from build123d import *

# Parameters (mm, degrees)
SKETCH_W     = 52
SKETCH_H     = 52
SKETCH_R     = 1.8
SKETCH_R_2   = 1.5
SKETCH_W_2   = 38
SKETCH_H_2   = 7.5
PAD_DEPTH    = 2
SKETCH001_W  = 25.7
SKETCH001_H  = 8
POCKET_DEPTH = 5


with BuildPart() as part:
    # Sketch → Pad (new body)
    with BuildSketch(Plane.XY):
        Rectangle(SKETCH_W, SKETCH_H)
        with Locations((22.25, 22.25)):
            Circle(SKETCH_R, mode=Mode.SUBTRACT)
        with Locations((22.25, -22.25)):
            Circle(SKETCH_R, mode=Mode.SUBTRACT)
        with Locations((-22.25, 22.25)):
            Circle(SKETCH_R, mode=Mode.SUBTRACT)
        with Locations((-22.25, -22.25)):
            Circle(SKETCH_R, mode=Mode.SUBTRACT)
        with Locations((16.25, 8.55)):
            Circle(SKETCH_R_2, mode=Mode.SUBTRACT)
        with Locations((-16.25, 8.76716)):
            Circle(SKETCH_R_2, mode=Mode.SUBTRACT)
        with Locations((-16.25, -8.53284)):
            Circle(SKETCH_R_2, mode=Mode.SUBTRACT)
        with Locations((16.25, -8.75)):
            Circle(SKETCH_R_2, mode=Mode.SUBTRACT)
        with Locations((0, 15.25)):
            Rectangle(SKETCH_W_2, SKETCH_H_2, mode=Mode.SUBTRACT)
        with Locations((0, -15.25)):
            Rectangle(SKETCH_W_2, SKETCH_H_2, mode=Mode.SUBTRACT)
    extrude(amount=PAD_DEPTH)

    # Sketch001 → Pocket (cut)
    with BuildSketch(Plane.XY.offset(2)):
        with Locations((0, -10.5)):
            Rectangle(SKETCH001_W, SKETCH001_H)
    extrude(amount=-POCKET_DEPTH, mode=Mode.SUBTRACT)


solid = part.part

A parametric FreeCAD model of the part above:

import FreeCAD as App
import Part
import Sketcher
from FreeCAD import Vector

doc = App.newDocument("Part")
body = doc.addObject("PartDesign::Body", "Body")

# Sketch on XY plane
sketch1 = body.newObject("Sketcher::SketchObject", "Sketch")
sketch1.AttachmentSupport = (doc.getObject("XY_Plane"), [""])
sketch1.MapMode = "FlatFace"
sketch1.addGeometry([
    Part.LineSegment(Vector(-26, 26, 0), Vector(-26, -26, 0)),  # 0
    Part.LineSegment(Vector(-26, -26, 0), Vector(26, -26, 0)),  # 1
    Part.LineSegment(Vector(26, -26, 0), Vector(26, 26, 0)),  # 2
    Part.LineSegment(Vector(26, 26, 0), Vector(-26, 26, 0)),  # 3
    Part.Circle(Vector(-22.2, -22.2, 0), Vector(0, 0, 1), 1.8),  # 4
    Part.LineSegment(Vector(19, -19, 0), Vector(-19, -19, 0)),  # 5
    Part.LineSegment(Vector(-19, -19, 0), Vector(-19, -11.5, 0)),  # 6
    Part.LineSegment(Vector(-19, -11.5, 0), Vector(19, -11.5, 0)),  # 7
    Part.LineSegment(Vector(19, -11.5, 0), Vector(19, -19, 0)),  # 8
    Part.Circle(Vector(-16.2, -8.5, 0), Vector(0, 0, 1), 1.5),  # 9
    Part.Circle(Vector(22.2, -22.2, 0), Vector(0, 0, 1), 1.8),  # 10
    Part.Circle(Vector(16.2, -8.8, 0), Vector(0, 0, 1), 1.5),  # 11
    Part.Circle(Vector(-16.2, 8.8, 0), Vector(0, 0, 1), 1.5),  # 12
    Part.Circle(Vector(-22.2, 22.2, 0), Vector(0, 0, 1), 1.8),  # 13
    Part.LineSegment(Vector(19, 11.5, 0), Vector(-19, 11.5, 0)),  # 14
    Part.LineSegment(Vector(-19, 11.5, 0), Vector(-19, 19, 0)),  # 15
    Part.LineSegment(Vector(-19, 19, 0), Vector(19, 19, 0)),  # 16
    Part.LineSegment(Vector(19, 19, 0), Vector(19, 11.5, 0)),  # 17
    Part.Circle(Vector(16.2, 8.6, 0), Vector(0, 0, 1), 1.5),  # 18
    Part.Circle(Vector(22.2, 22.2, 0), Vector(0, 0, 1), 1.8),  # 19
], False)
sketch1.addConstraint([
    Sketcher.Constraint("Coincident", 0, 2, 1, 1),
    Sketcher.Constraint("Coincident", 1, 2, 2, 1),
    Sketcher.Constraint("Coincident", 2, 2, 3, 1),
    Sketcher.Constraint("Coincident", 3, 2, 0, 1),
    Sketcher.Constraint("Coincident", 5, 2, 6, 1),
    Sketcher.Constraint("Coincident", 6, 2, 7, 1),
    Sketcher.Constraint("Coincident", 7, 2, 8, 1),
    Sketcher.Constraint("Coincident", 8, 2, 5, 1),
    Sketcher.Constraint("Coincident", 14, 2, 15, 1),
    Sketcher.Constraint("Coincident", 15, 2, 16, 1),
    Sketcher.Constraint("Coincident", 16, 2, 17, 1),
    Sketcher.Constraint("Coincident", 17, 2, 14, 1),
    Sketcher.Constraint("Vertical", 0),
    Sketcher.Constraint("Horizontal", 1),
    Sketcher.Constraint("Vertical", 2),
    Sketcher.Constraint("Horizontal", 3),
    Sketcher.Constraint("Horizontal", 5),
    Sketcher.Constraint("Vertical", 6),
    Sketcher.Constraint("Horizontal", 7),
    Sketcher.Constraint("Vertical", 8),
    Sketcher.Constraint("Horizontal", 14),
    Sketcher.Constraint("Vertical", 15),
    Sketcher.Constraint("Horizontal", 16),
    Sketcher.Constraint("Vertical", 17),
    Sketcher.Constraint("Equal", 4, 10),
    Sketcher.Constraint("Equal", 9, 11),
    Sketcher.Constraint("Equal", 11, 12),
    Sketcher.Constraint("Equal", 10, 13),
    Sketcher.Constraint("Equal", 12, 18),
    Sketcher.Constraint("Equal", 13, 19),
    Sketcher.Constraint("Symmetric", 10, 3, 13, 3, -1, 1),
    Sketcher.Constraint("Symmetric", 4, 3, 19, 3, -1, 1),
    Sketcher.Constraint("Symmetric", 0, 2, 2, 2, -1, 1),
    Sketcher.Constraint("Symmetric", 7, 2, 14, 2, -1, 1),
    Sketcher.Constraint("Symmetric", 5, 2, 16, 2, -1, 1),
    Sketcher.Constraint("Symmetric", 4, 3, 10, 3, -2),
    Sketcher.Constraint("Vertical", 9, 3, 12, 3),
    Sketcher.Constraint("Vertical", 11, 3, 18, 3),
    Sketcher.Constraint("Vertical", 6, 2, 14, 2),
    Sketcher.Constraint("Equal", 3, 0),
    Sketcher.Constraint("Diameter", 9, 3.0),
    Sketcher.Constraint("Diameter", 4, 3.6),
    Sketcher.Constraint("DistanceX", 1, 1, 1, 2, 52.0),
    Sketcher.Constraint("DistanceX", 5, 2, 5, 1, 38.0),
    Sketcher.Constraint("DistanceY", 6, 1, 6, 2, 7.5),
    Sketcher.Constraint("DistanceY", 5, 2, -1, 1, 19.0),
    Sketcher.Constraint("DistanceX", 4, 3, 9, 3, 6.0),
    Sketcher.Constraint("DistanceX", 11, 3, 10, 3, 6.0),
    Sketcher.Constraint("DistanceY", 11, 3, 13, 3, 31.0),
    Sketcher.Constraint("DistanceX", 9, 3, 10, 3, 38.5),
    Sketcher.Constraint("DistanceY", 10, 3, 11, 3, 13.5),
    Sketcher.Constraint("DistanceY", 9, 3, 12, 3, 17.3),
    Sketcher.Constraint("DistanceY", 11, 3, 18, 3, 17.3),
    Sketcher.Constraint("DistanceY", 9, 3, -1, 1, 8.53284),
])
pad1 = body.newObject("PartDesign::Pad", "Pad")
pad1.Profile = sketch1
pad1.Length = 2

# Sketch on XY plane
sketch2 = body.newObject("Sketcher::SketchObject", "Sketch001")
sketch2.AttachmentSupport = (doc.getObject("XY_Plane"), [""])
sketch2.MapMode = "FlatFace"
sketch2.AttachmentOffset = App.Placement(Vector(0, 0, 2), App.Rotation())
sketch2.addGeometry([
    Part.LineSegment(Vector(-13, -6, 0), Vector(-13, -14, 0)),
    Part.LineSegment(Vector(-13, -14, 0), Vector(13, -14, 0)),
    Part.LineSegment(Vector(13, -14, 0), Vector(13, -6, 0)),
    Part.LineSegment(Vector(13, -6, 0), Vector(-13, -6, 0)),
], False)
sketch2.addConstraint([
    Sketcher.Constraint("Coincident", 0, 2, 1, 1),
    Sketcher.Constraint("Coincident", 1, 2, 2, 1),
    Sketcher.Constraint("Coincident", 2, 2, 3, 1),
    Sketcher.Constraint("Coincident", 3, 2, 0, 1),
    Sketcher.Constraint("Vertical", 0),
    Sketcher.Constraint("Horizontal", 1),
    Sketcher.Constraint("Vertical", 2),
    Sketcher.Constraint("Horizontal", 3),
    Sketcher.Constraint("DistanceY", 0, 2, 0, 1, 8.0),
    Sketcher.Constraint("DistanceX", 1, 1, 1, 2, 25.7),
    Sketcher.Constraint("DistanceY", 0, 2, -1, 1, 14.5),
    Sketcher.Constraint("DistanceX", 0, 2, -1, 1, 12.85),
])
pocket1 = body.newObject("PartDesign::Pocket", "Pocket")
pocket1.Profile = sketch2
pocket1.Length = 5

doc.recompute()
